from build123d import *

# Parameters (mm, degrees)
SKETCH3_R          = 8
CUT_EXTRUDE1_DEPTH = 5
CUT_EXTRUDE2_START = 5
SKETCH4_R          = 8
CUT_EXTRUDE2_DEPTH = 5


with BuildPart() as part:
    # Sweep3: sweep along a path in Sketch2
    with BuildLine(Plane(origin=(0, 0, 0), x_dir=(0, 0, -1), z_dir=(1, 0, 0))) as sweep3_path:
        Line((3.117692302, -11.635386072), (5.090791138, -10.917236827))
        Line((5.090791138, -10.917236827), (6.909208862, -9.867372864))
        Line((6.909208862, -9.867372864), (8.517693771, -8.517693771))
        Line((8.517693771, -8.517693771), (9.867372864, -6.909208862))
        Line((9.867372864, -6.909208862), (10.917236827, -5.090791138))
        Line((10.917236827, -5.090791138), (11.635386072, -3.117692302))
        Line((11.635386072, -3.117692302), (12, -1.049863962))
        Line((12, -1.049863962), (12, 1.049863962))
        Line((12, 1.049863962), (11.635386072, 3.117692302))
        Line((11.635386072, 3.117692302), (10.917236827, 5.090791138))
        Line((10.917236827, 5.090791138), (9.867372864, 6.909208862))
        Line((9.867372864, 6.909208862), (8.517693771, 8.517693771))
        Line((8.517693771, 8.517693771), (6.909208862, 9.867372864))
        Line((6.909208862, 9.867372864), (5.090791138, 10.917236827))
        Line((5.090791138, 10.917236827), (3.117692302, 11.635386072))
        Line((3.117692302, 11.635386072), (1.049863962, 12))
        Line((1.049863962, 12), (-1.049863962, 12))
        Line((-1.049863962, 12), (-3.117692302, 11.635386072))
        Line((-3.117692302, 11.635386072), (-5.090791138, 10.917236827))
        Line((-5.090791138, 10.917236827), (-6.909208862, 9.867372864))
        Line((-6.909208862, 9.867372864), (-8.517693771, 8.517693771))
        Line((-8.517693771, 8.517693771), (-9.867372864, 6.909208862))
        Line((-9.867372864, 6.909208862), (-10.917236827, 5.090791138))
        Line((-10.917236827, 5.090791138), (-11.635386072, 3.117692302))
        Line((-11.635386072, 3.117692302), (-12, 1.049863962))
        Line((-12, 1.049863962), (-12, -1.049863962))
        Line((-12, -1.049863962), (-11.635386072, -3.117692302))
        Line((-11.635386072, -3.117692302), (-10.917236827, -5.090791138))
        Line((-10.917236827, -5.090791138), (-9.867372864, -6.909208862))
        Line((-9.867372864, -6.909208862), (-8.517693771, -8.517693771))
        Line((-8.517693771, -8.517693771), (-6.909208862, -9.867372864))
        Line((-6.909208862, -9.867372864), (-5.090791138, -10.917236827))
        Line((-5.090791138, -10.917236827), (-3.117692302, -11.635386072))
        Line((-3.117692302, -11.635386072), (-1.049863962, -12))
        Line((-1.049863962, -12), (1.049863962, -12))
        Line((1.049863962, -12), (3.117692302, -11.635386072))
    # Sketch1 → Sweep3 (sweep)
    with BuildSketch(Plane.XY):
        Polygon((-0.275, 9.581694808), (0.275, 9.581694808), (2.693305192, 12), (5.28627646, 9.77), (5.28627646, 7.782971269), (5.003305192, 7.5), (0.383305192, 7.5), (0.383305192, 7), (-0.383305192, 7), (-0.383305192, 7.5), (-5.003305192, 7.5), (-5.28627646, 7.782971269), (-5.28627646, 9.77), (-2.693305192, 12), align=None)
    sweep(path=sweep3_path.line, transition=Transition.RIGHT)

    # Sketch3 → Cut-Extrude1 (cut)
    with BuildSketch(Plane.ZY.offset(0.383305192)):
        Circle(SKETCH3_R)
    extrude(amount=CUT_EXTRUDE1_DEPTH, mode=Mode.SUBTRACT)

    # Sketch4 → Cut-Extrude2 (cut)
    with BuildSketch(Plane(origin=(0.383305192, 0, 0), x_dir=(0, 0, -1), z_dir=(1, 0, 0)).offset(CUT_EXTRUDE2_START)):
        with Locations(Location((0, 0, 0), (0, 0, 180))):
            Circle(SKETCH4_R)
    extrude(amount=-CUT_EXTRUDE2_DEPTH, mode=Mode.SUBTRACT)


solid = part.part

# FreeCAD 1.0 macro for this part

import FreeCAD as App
import Part
import Sketcher
from FreeCAD import Vector
Q = App.Units.Quantity


def add_polygon(sketch, points):
    """Adds a closed chain of lines whose ends are joined by coincident constraints."""
    first, n = sketch.GeometryCount, len(points)
    for a, b in zip(points, points[1:] + points[:1]):
        sketch.addGeometry(Part.LineSegment(App.Vector(*a, 0), App.Vector(*b, 0)), False)
    for i in range(n):
        sketch.addConstraint(Sketcher.Constraint("Coincident", first + i, 2, first + (i + 1) % n, 1))

doc = App.newDocument("Part")
body = doc.addObject("PartDesign::Body", "Body")

# Sketch on XY plane
sketch1 = body.newObject("Sketcher::SketchObject", "Sketch")
sketch1.AttachmentSupport = (doc.getObject("XY_Plane"), [""])
sketch1.MapMode = "FlatFace"
add_polygon(sketch1, [(0.28, 9.58), (-0.28, 9.58), (-2.69, 12), (-5.29, 9.77), (-5.29, 7.78), (-5, 7.5), (-0.38, 7.5), (-0.38, 7), (0.38, 7), (0.38, 7.5), (5, 7.5), (5.29, 7.78), (5.29, 9.77), (2.69, 12)])  # lines 0-13
sketch1.addConstraint([
    Sketcher.Constraint("Horizontal", 0),
    Sketcher.Constraint("Vertical", 3),
    Sketcher.Constraint("Horizontal", 5),
    Sketcher.Constraint("Vertical", 6),
    Sketcher.Constraint("Horizontal", 7),
    Sketcher.Constraint("Vertical", 8),
    Sketcher.Constraint("Horizontal", 9),
    Sketcher.Constraint("Vertical", 11),
    Sketcher.Constraint("Symmetric", 5, 2, 8, 2, -2),
    Sketcher.Constraint("Symmetric", 3, 2, 10, 2, -2),
    Sketcher.Constraint("Symmetric", 1, 2, 12, 2, -2),
    Sketcher.Constraint("Parallel", 1, 4),
    Sketcher.Constraint("Perpendicular", 4, 10),
    Sketcher.Constraint("Parallel", 10, 13),
    Sketcher.Constraint("Horizontal", 2, 2, 11, 2),
    Sketcher.Constraint("Equal", 5, 9),
    Sketcher.Constraint("Equal", 1, 2),
    Sketcher.Constraint("DistanceY", 6, 2, 6, 1, 0.5),
    Sketcher.Constraint("DistanceY", -1, 1, 1, 2, 12.0),
    Sketcher.Constraint("DistanceY", -1, 1, 6, 2, 7.0),
    Sketcher.Constraint("DistanceX", 0, 2, 0, 1, 0.55),
    Sketcher.Constraint("DistanceX", 5, 1, 5, 2, 4.62),
    Sketcher.Constraint("Distance", 1, 3.42),
    Sketcher.Constraint("DistanceY", -1, 1, 2, 2, 9.77),
    Sketcher.Constraint("DistanceX", 4, 2, 1, 2, 2.31),
])

# Sketch on YZ plane
sketch2 = body.newObject("Sketcher::SketchObject", "Sketch001")
sketch2.AttachmentSupport = (doc.getObject("YZ_Plane"), [""])
sketch2.MapMode = "FlatFace"
add_polygon(sketch2, [(-11.6, -3.1), (-10.9, -5.1), (-9.9, -6.9), (-8.5, -8.5), (-6.9, -9.9), (-5.1, -10.9), (-3.1, -11.6), (-1, -12), (1, -12), (3.1, -11.6), (5.1, -10.9), (6.9, -9.9), (8.5, -8.5), (9.9, -6.9), (10.9, -5.1), (11.6, -3.1), (12, -1), (12, 1), (11.6, 3.1), (10.9, 5.1), (9.9, 6.9), (8.5, 8.5), (6.9, 9.9), (5.1, 10.9), (3.1, 11.6), (1, 12), (-1, 12), (-3.1, 11.6), (-5.1, 10.9), (-6.9, 9.9), (-8.5, 8.5), (-9.9, 6.9), (-10.9, 5.1), (-11.6, 3.1), (-12, 1), (-12, -1)])  # lines 0-35
sketch2.addConstraint([
    Sketcher.Constraint("Horizontal", 7),
    Sketcher.Constraint("Vertical", 16),
    Sketcher.Constraint("Horizontal", 25),
    Sketcher.Constraint("Vertical", 34),
    Sketcher.Constraint("Symmetric", 0, 2, 18, 2, -1, 1),
    Sketcher.Constraint("Symmetric", 1, 2, 19, 2, -1, 1),
    Sketcher.Constraint("Symmetric", 2, 2, 20, 2, -1, 1),
    Sketcher.Constraint("Symmetric", 3, 2, 21, 2, -1, 1),
    Sketcher.Constraint("Symmetric", 4, 2, 22, 2, -1, 1),
    Sketcher.Constraint("Symmetric", 5, 2, 23, 2, -1, 1),
    Sketcher.Constraint("Symmetric", 6, 2, 24, 2, -1, 1),
    Sketcher.Constraint("Symmetric", 8, 2, 26, 2, -1, 1),
    Sketcher.Constraint("Symmetric", 9, 2, 27, 2, -1, 1),
    Sketcher.Constraint("Symmetric", 10, 2, 28, 2, -1, 1),
    Sketcher.Constraint("Symmetric", 11, 2, 29, 2, -1, 1),
    Sketcher.Constraint("Symmetric", 12, 2, 30, 2, -1, 1),
    Sketcher.Constraint("Symmetric", 13, 2, 31, 2, -1, 1),
    Sketcher.Constraint("Symmetric", 14, 2, 32, 2, -1, 1),
    Sketcher.Constraint("Symmetric", 15, 2, 33, 2, -1, 1),
    Sketcher.Constraint("Symmetric", 17, 2, 35, 2, -1, 1),
    Sketcher.Constraint("Symmetric", 5, 2, 8, 2, -2),
    Sketcher.Constraint("Symmetric", 4, 2, 9, 2, -2),
    Sketcher.Constraint("Symmetric", 3, 2, 10, 2, -2),
    Sketcher.Constraint("Symmetric", 2, 2, 11, 2, -2),
    Sketcher.Constraint("Symmetric", 1, 2, 12, 2, -2),
    Sketcher.Constraint("Symmetric", 0, 2, 13, 2, -2),
    Sketcher.Constraint("Symmetric", 17, 2, 32, 2, -2),
    Sketcher.Constraint("Perpendicular", 0, 9),
    Sketcher.Constraint("Perpendicular", 1, 10),
    Sketcher.Constraint("Perpendicular", 2, 11),
    Sketcher.Constraint("Perpendicular", 6, 15),
    Sketcher.Constraint("Perpendicular", 8, 17),
    Sketcher.Constraint("Perpendicular", 17, 26),
    Sketcher.Constraint("Perpendicular", 26, 35),
    Sketcher.Constraint("Horizontal", 16, 2, 33, 2),
    Sketcher.Constraint("Equal", 25, 16),
    Sketcher.Constraint("Equal", 0, 1),
    Sketcher.Constraint("Equal", 1, 2),
    Sketcher.Constraint("Equal", 2, 3),
    Sketcher.Constraint("Equal", 3, 4),
    Sketcher.Constraint("Equal", 4, 5),
    Sketcher.Constraint("Equal", 5, 6),
    Sketcher.Constraint("Equal", 14, 15),
    Sketcher.Constraint("Angle", 0, Q("-70 deg")),
    Sketcher.Constraint("Angle", 1, Q("-60 deg")),
    Sketcher.Constraint("Angle", 2, Q("-50 deg")),
    Sketcher.Constraint("Angle", 6, Q("-10 deg")),
    Sketcher.Constraint("DistanceY", 6, 2, -1, 1, 12.0),
    Sketcher.Constraint("DistanceX", 2, 2, 5, 2, 5.400001),
])
doc.recompute()

additivepipe = body.newObject("PartDesign::AdditivePipe", "AdditivePipe")
additivepipe.Profile = sketch1
additivepipe.Spine = (sketch2, ["Edge1", "Edge2", "Edge3", "Edge4", "Edge5", "Edge6", "Edge7", "Edge8", "Edge9", "Edge10", "Edge11", "Edge12", "Edge13", "Edge14", "Edge15", "Edge16", "Edge17", "Edge18", "Edge19", "Edge20", "Edge21", "Edge22", "Edge23", "Edge24", "Edge25", "Edge26", "Edge27", "Edge28", "Edge29", "Edge30", "Edge31", "Edge32", "Edge33", "Edge34", "Edge35", "Edge36"])
additivepipe.Transition = "Right corner"

# Sketch on YZ plane
sketch3 = body.newObject("Sketcher::SketchObject", "Sketch002")
sketch3.AttachmentSupport = (doc.getObject("YZ_Plane"), [""])
sketch3.MapMode = "FlatFace"
sketch3.AttachmentOffset = App.Placement(Vector(0, 0, -0.383305), App.Rotation())
sketch3.addGeometry(Part.Circle(Vector(0, 0, 0), Vector(0, 0, 1), 8), False)
sketch3.addConstraint([
    Sketcher.Constraint("Coincident", 0, 3, -1, 1),
    Sketcher.Constraint("Diameter", 0, 16.0),
])
pocket1 = body.newObject("PartDesign::Pocket", "Pocket")
pocket1.Profile = sketch3
pocket1.Length = 5

# Sketch on YZ plane
sketch4 = body.newObject("Sketcher::SketchObject", "Sketch003")
sketch4.AttachmentSupport = (doc.getObject("YZ_Plane"), [""])
sketch4.MapMode = "FlatFace"
sketch4.AttachmentOffset = App.Placement(Vector(0, 0, 5.383305), App.Rotation())
sketch4.addGeometry(Part.Circle(Vector(0, 0, 0), Vector(0, 0, 1), 8), False)
sketch4.addConstraint([
    Sketcher.Constraint("Coincident", 0, 3, -1, 1),
    Sketcher.Constraint("Diameter", 0, 16.0),
])
pocket2 = body.newObject("PartDesign::Pocket", "Pocket001")
pocket2.Profile = sketch4
pocket2.Length = 5

doc.recompute()
